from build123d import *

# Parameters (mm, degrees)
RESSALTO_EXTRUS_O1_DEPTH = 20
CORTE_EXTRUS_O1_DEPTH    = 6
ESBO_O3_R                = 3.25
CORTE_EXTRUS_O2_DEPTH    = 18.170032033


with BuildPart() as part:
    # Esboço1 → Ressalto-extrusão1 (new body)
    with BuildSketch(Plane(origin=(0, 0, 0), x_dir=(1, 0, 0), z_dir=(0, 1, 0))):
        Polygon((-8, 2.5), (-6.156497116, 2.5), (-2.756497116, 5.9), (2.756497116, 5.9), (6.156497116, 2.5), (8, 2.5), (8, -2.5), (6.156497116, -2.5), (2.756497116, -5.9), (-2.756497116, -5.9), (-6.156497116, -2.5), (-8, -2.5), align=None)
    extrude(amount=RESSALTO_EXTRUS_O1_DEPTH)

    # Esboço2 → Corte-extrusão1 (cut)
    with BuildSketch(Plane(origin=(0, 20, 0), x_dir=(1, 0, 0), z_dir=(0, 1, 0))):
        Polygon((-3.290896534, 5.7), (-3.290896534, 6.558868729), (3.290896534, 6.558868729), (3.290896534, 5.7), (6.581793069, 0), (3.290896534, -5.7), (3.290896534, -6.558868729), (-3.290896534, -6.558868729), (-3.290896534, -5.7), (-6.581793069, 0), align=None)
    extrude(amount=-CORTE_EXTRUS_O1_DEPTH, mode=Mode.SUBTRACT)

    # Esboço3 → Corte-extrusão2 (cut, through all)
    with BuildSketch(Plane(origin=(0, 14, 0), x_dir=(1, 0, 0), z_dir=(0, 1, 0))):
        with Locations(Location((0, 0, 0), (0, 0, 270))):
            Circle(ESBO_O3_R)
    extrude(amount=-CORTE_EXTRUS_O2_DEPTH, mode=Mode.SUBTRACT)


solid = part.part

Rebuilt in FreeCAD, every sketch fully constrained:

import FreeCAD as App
import Part
import Sketcher

V = App.Vector
Q = App.Units.Quantity


def add_polygon(sketch, points):
    """Adds a closed chain of lines whose ends are joined by coincident constraints."""
    first, n = sketch.GeometryCount, len(points)
    for a, b in zip(points, points[1:] + points[:1]):
        sketch.addGeometry(Part.LineSegment(App.Vector(*a, 0), App.Vector(*b, 0)), False)
    for i in range(n):
        sketch.addConstraint(Sketcher.Constraint("Coincident", first + i, 2, first + (i + 1) % n, 1))

doc = App.newDocument("Part")
params = doc.addObject("Spreadsheet::Sheet", "Params")
for row, (alias, value) in enumerate([
    ("sketch1_height", "5 mm"),
    ("pad1_length", "20 mm"),
    ("pocket1_length", "6 mm"),
    ("sketch3_diameter", "6.5 mm"),
], start=1):
    params.set(f"A{row}", alias)
    params.set(f"B{row}", "=" + value)
    params.setAlias(f"B{row}", alias)

body = doc.addObject("PartDesign::Body", "Body")

sketch1 = doc.addObject("Sketcher::SketchObject", "Sketch")
body.addObject(sketch1)
sketch1.AttachmentSupport = (doc.XZ_Plane, [""])
sketch1.MapMode = "FlatFace"
add_polygon(sketch1, [(-6.2, -2.5), (-8, -2.5), (-8, 2.5), (-6.2, 2.5), (-2.8, 5.9), (2.8, 5.9), (6.2, 2.5), (8, 2.5), (8, -2.5), (6.2, -2.5), (2.8, -5.9), (-2.8, -5.9)])
sketch1.addConstraint(Sketcher.Constraint("Horizontal", 0))
sketch1.addConstraint(Sketcher.Constraint("Vertical", 1))
sketch1.addConstraint(Sketcher.Constraint("Horizontal", 2))
sketch1.addConstraint(Sketcher.Constraint("Horizontal", 4))
sketch1.addConstraint(Sketcher.Constraint("Horizontal", 6))
sketch1.addConstraint(Sketcher.Constraint("Vertical", 7))
sketch1.addConstraint(Sketcher.Constraint("Horizontal", 8))
sketch1.addConstraint(Sketcher.Constraint("Horizontal", 10))
sketch1.addConstraint(Sketcher.Constraint("Symmetric", 0, 2, 6, 2, -1, 1))
sketch1.addConstraint(Sketcher.Constraint("Symmetric", 2, 2, 8, 2, -1, 1))
sketch1.addConstraint(Sketcher.Constraint("Symmetric", 3, 2, 9, 2, -1, 1))
sketch1.addConstraint(Sketcher.Constraint("Symmetric", 2, 2, 5, 2, -2))
sketch1.addConstraint(Sketcher.Constraint("Perpendicular", 3, 5))
sketch1.addConstraint(Sketcher.Constraint("Perpendicular", 9, 11))
sketch1.addConstraint(Sketcher.Constraint("Vertical", 4, 2, 9, 2))
sketch1.addConstraint(Sketcher.Constraint("Vertical", 3, 2, 10, 2))
sketch1.addConstraint(Sketcher.Constraint("DistanceY", 1, 1, 1, 2, Q("5 mm")))
sketch1.addConstraint(Sketcher.Constraint("DistanceX", 0, 2, -1, 1, Q("8 mm")))
sketch1.addConstraint(Sketcher.Constraint("DistanceY", -1, 1, 3, 2, Q("5.9 mm")))
sketch1.addConstraint(Sketcher.Constraint("DistanceX", 0, 2, 0, 1, Q("1.843503 mm")))
sketch1.setExpression("Constraints[28]", "Params.sketch1_height")
pad1 = doc.addObject("PartDesign::Pad", "Pad")
body.addObject(pad1)
pad1.Profile = sketch1
pad1.setExpression("Length", "Params.pad1_length")
pad1.Reversed = True

sketch2 = doc.addObject("Sketcher::SketchObject", "Sketch001")
body.addObject(sketch2)
sketch2.AttachmentSupport = (doc.XZ_Plane, [""])
sketch2.MapMode = "FlatFace"
sketch2.AttachmentOffset = App.Placement(V(0, 0, -20), App.Rotation())
add_polygon(sketch2, [(-3.3, -6.6), (-3.3, -5.7), (-6.6, 0), (-3.3, 5.7), (-3.3, 6.6), (3.3, 6.6), (3.3, 5.7), (6.6, 0), (3.3, -5.7), (3.3, -6.6)])
sketch2.addConstraint(Sketcher.Constraint("Vertical", 0))
sketch2.addConstraint(Sketcher.Constraint("Vertical", 3))
sketch2.addConstraint(Sketcher.Constraint("Horizontal", 4))
sketch2.addConstraint(Sketcher.Constraint("Vertical", 5))
sketch2.addConstraint(Sketcher.Constraint("Vertical", 8))
sketch2.addConstraint(Sketcher.Constraint("Horizontal", 9))
sketch2.addConstraint(Sketcher.Constraint("Symmetric", 0, 2, 5, 2, -1, 1))
sketch2.addConstraint(Sketcher.Constraint("Symmetric", 1, 2, 6, 2, -1, 1))
sketch2.addConstraint(Sketcher.Constraint("Symmetric", 2, 2, 7, 2, -1, 1))
sketch2.addConstraint(Sketcher.Constraint("Symmetric", 2, 2, 5, 2, -2))
sketch2.addConstraint(Sketcher.Constraint("PointOnObject", 1, 2, -1))
sketch2.addConstraint(Sketcher.Constraint("Equal", 0, 3))
sketch2.addConstraint(Sketcher.Constraint("Angle", 1, Q("120 deg")))
sketch2.addConstraint(Sketcher.Constraint("DistanceY", 0, 2, -1, 1, Q("5.7 mm")))
sketch2.addConstraint(Sketcher.Constraint("DistanceY", 0, 1, 0, 2, Q("0.858869 mm")))
sketch2.addConstraint(Sketcher.Constraint("DistanceX", 4, 1, 4, 2, Q("6.581793 mm")))
pocket1 = doc.addObject("PartDesign::Pocket", "Pocket")
body.addObject(pocket1)
pocket1.Profile = sketch2
pocket1.setExpression("Length", "Params.pocket1_length")
pocket1.Reversed = True

sketch3 = doc.addObject("Sketcher::SketchObject", "Sketch002")
body.addObject(sketch3)
sketch3.AttachmentSupport = (doc.XZ_Plane, [""])
sketch3.MapMode = "FlatFace"
sketch3.AttachmentOffset = App.Placement(V(0, 0, -14), App.Rotation())
sketch3.addGeometry(Part.Circle(V(0, 0, 0), V(0, 0, 1), 3.2), False)
sketch3.addConstraint(Sketcher.Constraint("Coincident", 0, 3, -1, 1))
sketch3.addConstraint(Sketcher.Constraint("Diameter", 0, Q("6.5 mm")))
sketch3.setExpression("Constraints[1]", "Params.sketch3_diameter")
pocket2 = doc.addObject("PartDesign::Pocket", "Pocket001")
body.addObject(pocket2)
pocket2.Profile = sketch3
pocket2.Type = "ThroughAll"
pocket2.Reversed = True

doc.recompute()
